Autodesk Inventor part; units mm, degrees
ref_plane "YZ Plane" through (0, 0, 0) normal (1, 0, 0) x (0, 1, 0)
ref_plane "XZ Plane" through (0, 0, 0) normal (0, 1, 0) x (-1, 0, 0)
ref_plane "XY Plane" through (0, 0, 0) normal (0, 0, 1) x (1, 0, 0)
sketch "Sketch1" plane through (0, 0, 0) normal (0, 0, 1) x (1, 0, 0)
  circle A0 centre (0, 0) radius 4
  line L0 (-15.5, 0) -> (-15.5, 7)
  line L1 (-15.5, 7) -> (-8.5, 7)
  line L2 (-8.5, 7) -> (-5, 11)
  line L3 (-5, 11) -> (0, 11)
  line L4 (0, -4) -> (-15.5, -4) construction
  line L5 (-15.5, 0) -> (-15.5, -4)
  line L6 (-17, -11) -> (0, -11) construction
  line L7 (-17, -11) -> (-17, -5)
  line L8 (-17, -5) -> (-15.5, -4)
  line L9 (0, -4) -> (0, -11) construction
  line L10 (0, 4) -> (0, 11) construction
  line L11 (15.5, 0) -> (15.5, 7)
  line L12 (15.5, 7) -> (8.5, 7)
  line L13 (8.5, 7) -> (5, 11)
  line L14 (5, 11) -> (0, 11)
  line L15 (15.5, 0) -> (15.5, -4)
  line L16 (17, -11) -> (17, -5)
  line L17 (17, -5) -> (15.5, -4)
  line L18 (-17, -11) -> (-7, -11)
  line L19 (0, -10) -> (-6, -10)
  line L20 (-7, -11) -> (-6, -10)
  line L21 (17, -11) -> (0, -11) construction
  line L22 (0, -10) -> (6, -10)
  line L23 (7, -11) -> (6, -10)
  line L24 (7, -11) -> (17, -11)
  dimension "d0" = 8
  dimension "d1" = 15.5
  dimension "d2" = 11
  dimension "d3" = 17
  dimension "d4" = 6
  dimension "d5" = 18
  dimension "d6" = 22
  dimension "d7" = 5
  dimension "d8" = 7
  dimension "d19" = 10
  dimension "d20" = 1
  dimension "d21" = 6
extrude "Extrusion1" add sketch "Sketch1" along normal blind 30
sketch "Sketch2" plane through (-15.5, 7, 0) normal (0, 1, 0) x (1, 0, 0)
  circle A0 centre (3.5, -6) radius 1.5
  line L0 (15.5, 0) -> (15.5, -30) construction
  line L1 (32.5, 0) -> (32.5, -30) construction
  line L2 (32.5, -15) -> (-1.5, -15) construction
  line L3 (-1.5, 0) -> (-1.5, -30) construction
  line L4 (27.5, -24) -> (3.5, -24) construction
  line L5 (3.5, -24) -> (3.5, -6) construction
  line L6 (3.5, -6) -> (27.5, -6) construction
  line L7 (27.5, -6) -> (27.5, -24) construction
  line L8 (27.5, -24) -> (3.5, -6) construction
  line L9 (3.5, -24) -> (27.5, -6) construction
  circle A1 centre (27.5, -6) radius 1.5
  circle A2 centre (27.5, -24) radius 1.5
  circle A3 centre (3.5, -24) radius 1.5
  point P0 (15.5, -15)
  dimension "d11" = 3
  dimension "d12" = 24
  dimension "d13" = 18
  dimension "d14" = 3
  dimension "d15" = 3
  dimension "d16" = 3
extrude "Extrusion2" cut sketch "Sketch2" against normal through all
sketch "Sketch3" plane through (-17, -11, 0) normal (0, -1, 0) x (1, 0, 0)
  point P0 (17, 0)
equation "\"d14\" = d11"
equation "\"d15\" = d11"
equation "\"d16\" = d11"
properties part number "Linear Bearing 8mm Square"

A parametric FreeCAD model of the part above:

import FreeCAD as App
import Part
import Sketcher
from FreeCAD import Vector


def add_polygon(sketch, points):
    """Adds a closed chain of lines whose ends are joined by coincident constraints."""
    first, n = sketch.GeometryCount, len(points)
    for a, b in zip(points, points[1:] + points[:1]):
        sketch.addGeometry(Part.LineSegment(App.Vector(*a, 0), App.Vector(*b, 0)), False)
    for i in range(n):
        sketch.addConstraint(Sketcher.Constraint("Coincident", first + i, 2, first + (i + 1) % n, 1))

doc = App.newDocument("Part")
body = doc.addObject("PartDesign::Body", "Body")

# Sketch on XY plane
sketch1 = doc.addObject("Sketcher::SketchObject", "Sketch")
body.addObject(sketch1)
sketch1.AttachmentSupport = (doc.XY_Plane, [""])
sketch1.MapMode = "FlatFace"
add_polygon(sketch1, [(-15.5, 7), (-15.5, -4), (-17, -5), (-17, -11), (-7, -11), (-6, -10), (6, -10), (7, -11), (17, -11), (17, -5), (15.5, -4), (15.5, 7), (8.5, 7), (5, 11), (-5, 11), (-8.5, 7)])  # lines 0-15
sketch1.addGeometry(Part.Circle(Vector(0, 0, 0), Vector(0, 0, 1), 4), False)  # 16
sketch1.addConstraint([
    Sketcher.Constraint("Vertical", 0),
    Sketcher.Constraint("Vertical", 2),
    Sketcher.Constraint("Horizontal", 3),
    Sketcher.Constraint("Horizontal", 5),
    Sketcher.Constraint("Horizontal", 7),
    Sketcher.Constraint("Vertical", 8),
    Sketcher.Constraint("Vertical", 10),
    Sketcher.Constraint("Horizontal", 11),
    Sketcher.Constraint("Horizontal", 13),
    Sketcher.Constraint("Horizontal", 15),
    Sketcher.Constraint("Coincident", 16, 3, -1, 1),
    Sketcher.Constraint("Symmetric", 3, 2, 6, 2, -2),
    Sketcher.Constraint("Symmetric", 1, 2, 8, 2, -2),
    Sketcher.Constraint("Symmetric", 0, 2, 9, 2, -2),
    Sketcher.Constraint("Symmetric", 11, 2, 14, 2, -2),
    Sketcher.Constraint("Perpendicular", 4, 6),
    Sketcher.Constraint("Equal", 7, 13),
    Sketcher.Constraint("Equal", 4, 6),
    Sketcher.Constraint("Equal", 12, 14),
    Sketcher.Constraint("Diameter", 16, 8.0),
    Sketcher.Constraint("DistanceX", 3, 1, 3, 2, 10.0),
    Sketcher.Constraint("DistanceX", 11, 2, 11, 1, 7.0),
    Sketcher.Constraint("DistanceY", 0, 2, 0, 1, 11.0),
    Sketcher.Constraint("DistanceY", 2, 2, 2, 1, 6.0),
    Sketcher.Constraint("DistanceX", 1, 2, -1, 1, 17.0),
    Sketcher.Constraint("DistanceY", 1, 2, -1, 1, 5.0),
    Sketcher.Constraint("DistanceX", 4, 2, -1, 1, 6.0),
    Sketcher.Constraint("DistanceY", -1, 1, 10, 2, 7.0),
    Sketcher.Constraint("DistanceY", -1, 1, 12, 2, 11.0),
    Sketcher.Constraint("DistanceX", 0, 2, -1, 1, 15.5),
])
pad1 = doc.addObject("PartDesign::Pad", "Pad")
body.addObject(pad1)
pad1.Profile = sketch1
pad1.Length = 30

# Sketch on XZ plane
sketch2 = doc.addObject("Sketcher::SketchObject", "Sketch001")
body.addObject(sketch2)
sketch2.AttachmentSupport = (doc.XZ_Plane, [""])
sketch2.MapMode = "FlatFace"
sketch2.AttachmentOffset = App.Placement(Vector(0, 0, -7), App.Rotation())
sketch2.addGeometry([
    Part.Circle(Vector(-12, 6, 0), Vector(0, 0, 1), 1.5),
    Part.Circle(Vector(12, 6, 0), Vector(0, 0, 1), 1.5),
    Part.Circle(Vector(12, 24, 0), Vector(0, 0, 1), 1.5),
    Part.Circle(Vector(-12, 24, 0), Vector(0, 0, 1), 1.5),
], False)
sketch2.addConstraint([
    Sketcher.Constraint("Equal", 0, 1),
    Sketcher.Constraint("Equal", 1, 2),
    Sketcher.Constraint("Equal", 2, 3),
    Sketcher.Constraint("Symmetric", 0, 3, 1, 3, -2),
    Sketcher.Constraint("Symmetric", 2, 3, 3, 3, -2),
    Sketcher.Constraint("Vertical", 1, 3, 2, 3),
    Sketcher.Constraint("Diameter", 0, 3.0),
    Sketcher.Constraint("DistanceY", -1, 1, 2, 3, 24.0),
    Sketcher.Constraint("DistanceX", 0, 3, 1, 3, 24.0),
    Sketcher.Constraint("DistanceY", 1, 3, 2, 3, 18.0),
])
pocket1 = doc.addObject("PartDesign::Pocket", "Pocket")
body.addObject(pocket1)
pocket1.Profile = sketch2
pocket1.Type = "ThroughAll"
pocket1.Reversed = True

doc.recompute()
